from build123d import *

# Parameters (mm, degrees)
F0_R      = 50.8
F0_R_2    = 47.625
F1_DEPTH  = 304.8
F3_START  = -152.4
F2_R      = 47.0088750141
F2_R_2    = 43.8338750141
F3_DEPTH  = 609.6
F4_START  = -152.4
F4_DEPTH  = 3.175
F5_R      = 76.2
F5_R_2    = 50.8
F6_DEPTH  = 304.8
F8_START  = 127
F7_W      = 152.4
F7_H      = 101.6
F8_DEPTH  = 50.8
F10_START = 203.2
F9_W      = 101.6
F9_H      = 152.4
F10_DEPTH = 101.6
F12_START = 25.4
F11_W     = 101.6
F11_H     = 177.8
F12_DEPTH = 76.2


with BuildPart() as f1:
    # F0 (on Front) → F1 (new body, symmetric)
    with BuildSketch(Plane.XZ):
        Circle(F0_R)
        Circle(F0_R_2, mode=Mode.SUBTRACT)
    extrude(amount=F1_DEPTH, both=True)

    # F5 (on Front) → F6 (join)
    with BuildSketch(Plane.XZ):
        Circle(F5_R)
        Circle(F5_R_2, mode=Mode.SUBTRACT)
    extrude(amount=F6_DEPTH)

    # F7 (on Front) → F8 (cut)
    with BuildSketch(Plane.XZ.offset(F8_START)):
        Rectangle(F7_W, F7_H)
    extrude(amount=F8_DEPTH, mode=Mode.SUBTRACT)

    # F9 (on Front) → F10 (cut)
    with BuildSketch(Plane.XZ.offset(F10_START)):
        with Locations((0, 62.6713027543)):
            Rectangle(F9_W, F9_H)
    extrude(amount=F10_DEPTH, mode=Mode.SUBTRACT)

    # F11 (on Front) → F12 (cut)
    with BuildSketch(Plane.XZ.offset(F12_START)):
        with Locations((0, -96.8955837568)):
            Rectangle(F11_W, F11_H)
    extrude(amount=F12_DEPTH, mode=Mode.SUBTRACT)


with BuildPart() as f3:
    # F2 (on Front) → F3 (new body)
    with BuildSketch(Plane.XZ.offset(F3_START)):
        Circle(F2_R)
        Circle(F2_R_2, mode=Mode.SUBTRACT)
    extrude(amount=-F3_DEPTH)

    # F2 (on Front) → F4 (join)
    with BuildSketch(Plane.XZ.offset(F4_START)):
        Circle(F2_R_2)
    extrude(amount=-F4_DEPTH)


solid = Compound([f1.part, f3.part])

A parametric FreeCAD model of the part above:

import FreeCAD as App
import Part
import Sketcher

V = App.Vector
Q = App.Units.Quantity


def add_polygon(sketch, points):
    """Adds a closed chain of lines whose ends are joined by coincident constraints."""
    first, n = sketch.GeometryCount, len(points)
    for a, b in zip(points, points[1:] + points[:1]):
        sketch.addGeometry(Part.LineSegment(App.Vector(*a, 0), App.Vector(*b, 0)), False)
    for i in range(n):
        sketch.addConstraint(Sketcher.Constraint("Coincident", first + i, 2, first + (i + 1) % n, 1))

doc = App.newDocument("Part")
params = doc.addObject("Spreadsheet::Sheet", "Params")
for row, (alias, value) in enumerate([
    ("sketch1_diameter", "4 in"),
    ("sketch1_diameter2", "3.75 in"),
    ("pad1_length", "24 in"),
    ("sketch2_diameter", "6 in"),
    ("sketch2_diameter2", "4 in"),
    ("pad2_length", "12 in"),
    ("sketch3_width", "6 in"),
    ("sketch3_height", "4 in"),
    ("pocket1_length", "2 in"),
    ("sketch4_width", "4 in"),
    ("sketch4_height", "6 in"),
    ("pocket2_length", "4 in"),
    ("sketch5_width", "4 in"),
    ("sketch5_height", "7 in"),
    ("pocket3_length", "3 in"),
    ("pad3_length", "24 in"),
    ("pad4_length", "0.125 in"),
], start=1):
    params.set(f"A{row}", alias)
    params.set(f"B{row}", "=" + value)
    params.setAlias(f"B{row}", alias)

body = doc.addObject("PartDesign::Body", "Body")

# Sketch on XZ plane
sketch1 = body.newObject("Sketcher::SketchObject", "Sketch")
sketch1.AttachmentSupport = (doc.getObject("XZ_Plane"), [""])
sketch1.MapMode = "FlatFace"
sketch1.addGeometry([
    Part.Circle(V(0, 0, 0), V(0, 0, 1), 51),
    Part.Circle(V(0, 0, 0), V(0, 0, 1), 48),
], False)
sketch1.addConstraint([
    Sketcher.Constraint("Coincident", 0, 3, -1, 1),
    Sketcher.Constraint("Coincident", 1, 3, -1, 1),
    Sketcher.Constraint("Diameter", 0, Q("4 in")),
    Sketcher.Constraint("Diameter", 1, Q("3.75 in")),
])
sketch1.setExpression("Constraints[2]", "Params.sketch1_diameter")
sketch1.setExpression("Constraints[3]", "Params.sketch1_diameter2")
pad1 = body.newObject("PartDesign::Pad", "Pad")
pad1.Profile = sketch1
pad1.setExpression("Length", "Params.pad1_length")
pad1.Midplane = True

# Sketch on XZ plane
sketch2 = body.newObject("Sketcher::SketchObject", "Sketch001")
sketch2.AttachmentSupport = (doc.getObject("XZ_Plane"), [""])
sketch2.MapMode = "FlatFace"
sketch2.addGeometry([
    Part.Circle(V(0, 0, 0), V(0, 0, 1), 76),
    Part.Circle(V(0, 0, 0), V(0, 0, 1), 51),
], False)
sketch2.addConstraint([
    Sketcher.Constraint("Coincident", 0, 3, -1, 1),
    Sketcher.Constraint("Coincident", 1, 3, -1, 1),
    Sketcher.Constraint("Diameter", 0, Q("6 in")),
    Sketcher.Constraint("Diameter", 1, Q("4 in")),
])
sketch2.setExpression("Constraints[2]", "Params.sketch2_diameter")
sketch2.setExpression("Constraints[3]", "Params.sketch2_diameter2")
pad2 = body.newObject("PartDesign::Pad", "Pad001")
pad2.Profile = sketch2
pad2.setExpression("Length", "Params.pad2_length")

# Sketch on XZ plane
sketch3 = body.newObject("Sketcher::SketchObject", "Sketch002")
sketch3.AttachmentSupport = (doc.getObject("XZ_Plane"), [""])
sketch3.MapMode = "FlatFace"
sketch3.AttachmentOffset = App.Placement(V(0, 0, 5 * 25.4), App.Rotation())
add_polygon(sketch3, [(-76, 51), (-76, -51), (76, -51), (76, 51)])  # lines 0-3
sketch3.addConstraint([
    Sketcher.Constraint("Vertical", 0),
    Sketcher.Constraint("Horizontal", 1),
    Sketcher.Constraint("Vertical", 2),
    Sketcher.Constraint("Horizontal", 3),
    Sketcher.Constraint("Symmetric", 0, 2, 2, 2, -1, 1),
    Sketcher.Constraint("DistanceX", 1, 1, 1, 2, Q("6 in")),
    Sketcher.Constraint("DistanceY", 0, 2, 0, 1, Q("4 in")),
])
sketch3.setExpression("Constraints[9]", "Params.sketch3_width")
sketch3.setExpression("Constraints[10]", "Params.sketch3_height")
pocket1 = body.newObject("PartDesign::Pocket", "Pocket")
pocket1.Profile = sketch3
pocket1.setExpression("Length", "Params.pocket1_length")
pocket1.Reversed = True

# Sketch on XZ plane
sketch4 = body.newObject("Sketcher::SketchObject", "Sketch003")
sketch4.AttachmentSupport = (doc.getObject("XZ_Plane"), [""])
sketch4.MapMode = "FlatFace"
sketch4.AttachmentOffset = App.Placement(V(0, 0, 8 * 25.4), App.Rotation())
add_polygon(sketch4, [(-51, 139), (-51, -14), (51, -14), (51, 139)])  # lines 0-3
sketch4.addConstraint([
    Sketcher.Constraint("Vertical", 0),
    Sketcher.Constraint("Horizontal", 1),
    Sketcher.Constraint("Vertical", 2),
    Sketcher.Constraint("Horizontal", 3),
    Sketcher.Constraint("DistanceX", 1, 1, 1, 2, Q("4 in")),
    Sketcher.Constraint("DistanceY", 0, 2, 0, 1, Q("6 in")),
    Sketcher.Constraint("DistanceX", 0, 2, -1, 1, Q("2 in")),
    Sketcher.Constraint("DistanceY", 0, 2, -1, 1, 13.528697),
])
sketch4.setExpression("Constraints[8]", "Params.sketch4_width")
sketch4.setExpression("Constraints[9]", "Params.sketch4_height")
pocket2 = body.newObject("PartDesign::Pocket", "Pocket001")
pocket2.Profile = sketch4
pocket2.setExpression("Length", "Params.pocket2_length")
pocket2.Reversed = True

# Sketch on XZ plane
sketch5 = body.newObject("Sketcher::SketchObject", "Sketch004")
sketch5.AttachmentSupport = (doc.getObject("XZ_Plane"), [""])
sketch5.MapMode = "FlatFace"
sketch5.AttachmentOffset = App.Placement(V(0, 0, 1 * 25.4), App.Rotation())
add_polygon(sketch5, [(-51, -8), (-51, -186), (51, -186), (51, -8)])  # lines 0-3
sketch5.addConstraint([
    Sketcher.Constraint("Vertical", 0),
    Sketcher.Constraint("Horizontal", 1),
    Sketcher.Constraint("Vertical", 2),
    Sketcher.Constraint("Horizontal", 3),
    Sketcher.Constraint("DistanceX", 1, 1, 1, 2, Q("4 in")),
    Sketcher.Constraint("DistanceY", 0, 2, 0, 1, Q("7 in")),
    Sketcher.Constraint("DistanceX", 0, 2, -1, 1, Q("2 in")),
    Sketcher.Constraint("DistanceY", 0, 2, -1, 1, 185.795584),
])
sketch5.setExpression("Constraints[8]", "Params.sketch5_width")
sketch5.setExpression("Constraints[9]", "Params.sketch5_height")
pocket3 = body.newObject("PartDesign::Pocket", "Pocket002")
pocket3.Profile = sketch5
pocket3.setExpression("Length", "Params.pocket3_length")
pocket3.Reversed = True
body2 = doc.addObject("PartDesign::Body", "Body001")

# Sketch on XZ plane
sketch6 = body2.newObject("Sketcher::SketchObject", "Sketch005")
sketch6.AttachmentSupport = (doc.getObject("XZ_Plane001"), [""])
sketch6.MapMode = "FlatFace"
sketch6.AttachmentOffset = App.Placement(V(0, 0, -6 * 25.4), App.Rotation())
sketch6.addGeometry([
    Part.Circle(V(0, 0, 0), V(0, 0, 1), 47),
    Part.Circle(V(0, 0, 0), V(0, 0, 1), 44),
], False)
sketch6.addConstraint([
    Sketcher.Constraint("Coincident", 0, 3, -1, 1),
    Sketcher.Constraint("Coincident", 1, 3, -1, 1),
    Sketcher.Constraint("Diameter", 0, 94.01775),
    Sketcher.Constraint("Diameter", 1, 87.66775),
])
pad3 = body2.newObject("PartDesign::Pad", "Pad002")
pad3.Profile = sketch6
pad3.setExpression("Length", "Params.pad3_length")
pad3.Reversed = True

# Sketch on XZ plane
sketch7 = body2.newObject("Sketcher::SketchObject", "Sketch006")
sketch7.AttachmentSupport = (doc.getObject("XZ_Plane001"), [""])
sketch7.MapMode = "FlatFace"
sketch7.AttachmentOffset = App.Placement(V(0, 0, -6 * 25.4), App.Rotation())
sketch7.addGeometry(Part.Circle(V(0, 0, 0), V(0, 0, 1), 44), False)
sketch7.addConstraint([
    Sketcher.Constraint("Coincident", 0, 3, -1, 1),
    Sketcher.Constraint("Diameter", 0, 87.66775),
])
pad4 = body2.newObject("PartDesign::Pad", "Pad003")
pad4.Profile = sketch7
pad4.setExpression("Length", "Params.pad4_length")
pad4.Reversed = True

doc.recompute()
